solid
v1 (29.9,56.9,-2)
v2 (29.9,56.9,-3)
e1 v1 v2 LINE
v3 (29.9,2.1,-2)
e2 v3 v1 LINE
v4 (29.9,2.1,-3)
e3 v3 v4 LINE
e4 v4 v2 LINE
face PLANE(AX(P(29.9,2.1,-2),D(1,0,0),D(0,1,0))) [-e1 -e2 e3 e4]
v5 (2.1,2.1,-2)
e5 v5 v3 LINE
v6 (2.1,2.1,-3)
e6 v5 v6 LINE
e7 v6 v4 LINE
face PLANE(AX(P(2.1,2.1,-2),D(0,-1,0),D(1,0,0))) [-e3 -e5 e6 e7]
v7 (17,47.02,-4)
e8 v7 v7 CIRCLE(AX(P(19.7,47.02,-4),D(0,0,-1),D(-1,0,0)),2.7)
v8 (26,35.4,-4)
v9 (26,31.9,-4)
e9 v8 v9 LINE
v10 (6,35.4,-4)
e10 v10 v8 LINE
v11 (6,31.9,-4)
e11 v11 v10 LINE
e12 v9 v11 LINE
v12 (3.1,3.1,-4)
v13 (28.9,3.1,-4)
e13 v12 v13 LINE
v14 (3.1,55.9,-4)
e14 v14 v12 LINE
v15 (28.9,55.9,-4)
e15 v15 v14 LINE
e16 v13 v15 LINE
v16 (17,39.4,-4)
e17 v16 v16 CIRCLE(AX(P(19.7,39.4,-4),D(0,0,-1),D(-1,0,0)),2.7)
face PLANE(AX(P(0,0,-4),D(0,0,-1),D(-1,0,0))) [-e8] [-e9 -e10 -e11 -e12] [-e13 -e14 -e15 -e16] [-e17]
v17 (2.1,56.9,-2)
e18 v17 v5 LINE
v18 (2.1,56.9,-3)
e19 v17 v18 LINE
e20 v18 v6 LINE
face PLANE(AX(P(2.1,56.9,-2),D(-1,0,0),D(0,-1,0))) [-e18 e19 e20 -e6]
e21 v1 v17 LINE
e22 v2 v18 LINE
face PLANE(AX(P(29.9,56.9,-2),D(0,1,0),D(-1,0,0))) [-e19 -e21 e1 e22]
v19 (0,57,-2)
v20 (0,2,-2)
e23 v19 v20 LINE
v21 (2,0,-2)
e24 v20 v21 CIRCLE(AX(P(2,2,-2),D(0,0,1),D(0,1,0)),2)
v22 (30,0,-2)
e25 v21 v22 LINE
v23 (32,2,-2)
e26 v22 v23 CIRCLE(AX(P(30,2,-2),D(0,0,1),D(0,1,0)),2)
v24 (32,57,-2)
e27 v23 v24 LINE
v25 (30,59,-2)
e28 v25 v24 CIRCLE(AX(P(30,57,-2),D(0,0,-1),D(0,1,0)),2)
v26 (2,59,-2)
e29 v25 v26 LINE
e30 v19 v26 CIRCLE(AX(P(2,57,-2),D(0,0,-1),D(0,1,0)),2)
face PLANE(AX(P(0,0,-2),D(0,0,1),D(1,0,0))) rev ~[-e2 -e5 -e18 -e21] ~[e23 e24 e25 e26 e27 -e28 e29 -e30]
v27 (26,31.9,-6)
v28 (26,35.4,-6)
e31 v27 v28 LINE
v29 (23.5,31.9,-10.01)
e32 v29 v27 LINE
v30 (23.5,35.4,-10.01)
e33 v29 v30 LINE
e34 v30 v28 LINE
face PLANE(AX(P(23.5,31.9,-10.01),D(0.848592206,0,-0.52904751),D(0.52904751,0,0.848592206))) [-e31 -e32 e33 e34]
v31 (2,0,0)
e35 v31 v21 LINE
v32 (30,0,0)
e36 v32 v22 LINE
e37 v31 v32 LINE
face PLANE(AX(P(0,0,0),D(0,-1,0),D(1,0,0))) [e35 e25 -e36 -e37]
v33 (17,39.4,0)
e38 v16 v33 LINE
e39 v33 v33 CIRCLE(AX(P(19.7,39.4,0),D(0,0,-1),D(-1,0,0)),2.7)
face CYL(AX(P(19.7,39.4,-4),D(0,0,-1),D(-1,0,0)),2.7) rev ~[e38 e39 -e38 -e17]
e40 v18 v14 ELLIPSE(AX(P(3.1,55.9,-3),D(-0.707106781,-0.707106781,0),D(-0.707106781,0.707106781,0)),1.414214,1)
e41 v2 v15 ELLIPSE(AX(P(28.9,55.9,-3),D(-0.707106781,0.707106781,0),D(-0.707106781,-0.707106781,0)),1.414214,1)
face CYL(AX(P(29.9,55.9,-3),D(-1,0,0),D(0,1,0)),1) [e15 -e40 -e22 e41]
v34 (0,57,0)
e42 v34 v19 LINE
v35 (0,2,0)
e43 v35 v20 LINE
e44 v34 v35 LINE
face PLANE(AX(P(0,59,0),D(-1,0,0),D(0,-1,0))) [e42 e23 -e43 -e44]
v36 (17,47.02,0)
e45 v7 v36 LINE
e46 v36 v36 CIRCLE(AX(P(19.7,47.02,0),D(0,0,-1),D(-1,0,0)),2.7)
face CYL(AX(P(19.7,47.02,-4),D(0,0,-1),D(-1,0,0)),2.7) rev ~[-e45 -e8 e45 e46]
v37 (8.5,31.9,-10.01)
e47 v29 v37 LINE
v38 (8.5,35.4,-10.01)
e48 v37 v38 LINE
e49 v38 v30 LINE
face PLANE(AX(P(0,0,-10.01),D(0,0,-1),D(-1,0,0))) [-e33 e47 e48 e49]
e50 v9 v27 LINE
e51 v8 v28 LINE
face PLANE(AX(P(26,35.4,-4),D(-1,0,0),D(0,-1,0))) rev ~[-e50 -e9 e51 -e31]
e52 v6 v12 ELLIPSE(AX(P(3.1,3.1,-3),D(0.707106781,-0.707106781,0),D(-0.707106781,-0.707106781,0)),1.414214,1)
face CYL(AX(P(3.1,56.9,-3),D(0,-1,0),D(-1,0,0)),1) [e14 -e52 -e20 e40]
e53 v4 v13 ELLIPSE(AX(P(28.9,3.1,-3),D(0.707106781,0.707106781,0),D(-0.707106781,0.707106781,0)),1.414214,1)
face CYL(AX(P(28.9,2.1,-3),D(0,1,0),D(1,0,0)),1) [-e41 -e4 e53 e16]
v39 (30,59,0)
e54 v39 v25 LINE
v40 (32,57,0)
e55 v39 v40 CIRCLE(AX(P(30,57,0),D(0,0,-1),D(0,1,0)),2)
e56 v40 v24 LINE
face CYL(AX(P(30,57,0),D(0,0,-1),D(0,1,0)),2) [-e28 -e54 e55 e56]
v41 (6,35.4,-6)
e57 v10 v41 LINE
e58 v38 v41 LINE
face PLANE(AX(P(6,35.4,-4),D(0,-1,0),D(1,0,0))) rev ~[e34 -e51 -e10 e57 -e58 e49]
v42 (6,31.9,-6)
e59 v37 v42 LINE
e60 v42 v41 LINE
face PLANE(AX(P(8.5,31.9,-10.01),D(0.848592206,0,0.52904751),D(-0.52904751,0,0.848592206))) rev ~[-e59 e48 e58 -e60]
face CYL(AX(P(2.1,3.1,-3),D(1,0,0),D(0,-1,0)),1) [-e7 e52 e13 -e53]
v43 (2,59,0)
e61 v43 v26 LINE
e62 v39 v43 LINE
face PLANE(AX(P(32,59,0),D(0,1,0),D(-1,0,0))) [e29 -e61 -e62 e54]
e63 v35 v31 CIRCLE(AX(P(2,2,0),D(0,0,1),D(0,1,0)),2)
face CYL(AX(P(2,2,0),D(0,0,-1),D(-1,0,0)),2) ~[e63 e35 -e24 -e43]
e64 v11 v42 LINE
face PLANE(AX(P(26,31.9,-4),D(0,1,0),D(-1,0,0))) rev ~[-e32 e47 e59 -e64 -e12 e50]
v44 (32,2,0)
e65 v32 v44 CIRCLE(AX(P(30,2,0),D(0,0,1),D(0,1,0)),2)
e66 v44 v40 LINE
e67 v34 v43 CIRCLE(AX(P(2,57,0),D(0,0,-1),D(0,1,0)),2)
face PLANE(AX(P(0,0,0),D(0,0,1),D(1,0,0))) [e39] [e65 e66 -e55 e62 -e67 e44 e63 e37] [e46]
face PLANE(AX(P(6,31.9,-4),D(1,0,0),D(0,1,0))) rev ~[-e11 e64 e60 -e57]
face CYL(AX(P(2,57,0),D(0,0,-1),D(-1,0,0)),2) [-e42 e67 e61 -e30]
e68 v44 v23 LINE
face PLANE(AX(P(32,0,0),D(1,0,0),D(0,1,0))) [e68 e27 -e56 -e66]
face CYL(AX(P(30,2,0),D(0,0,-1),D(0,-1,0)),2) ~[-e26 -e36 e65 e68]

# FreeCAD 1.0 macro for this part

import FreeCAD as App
import Part
import Sketcher

V = App.Vector
Q = App.Units.Quantity


def edges_at(feature, points):
    """Names of the edges that pass closest to the given points."""
    edges = feature.Shape.Edges
    near = lambda p: min(range(len(edges)), key=lambda i: edges[i].distToShape(Part.Vertex(*p))[0])
    return sorted({f"Edge{near(p) + 1}" for p in points})


def add_polygon(sketch, points):
    """Adds a closed chain of lines whose ends are joined by coincident constraints."""
    first, n = sketch.GeometryCount, len(points)
    for a, b in zip(points, points[1:] + points[:1]):
        sketch.addGeometry(Part.LineSegment(App.Vector(*a, 0), App.Vector(*b, 0)), False)
    for i in range(n):
        sketch.addConstraint(Sketcher.Constraint("Coincident", first + i, 2, first + (i + 1) % n, 1))

doc = App.newDocument("Part")
params = doc.addObject("Spreadsheet::Sheet", "Params")
for row, (alias, value) in enumerate([
    ("sketch1_width", "32 mm"),
    ("sketch1_height", "59 mm"),
    ("pad1_length", "2 mm"),
    ("sketch2_width", "27.8 mm"),
    ("sketch2_height", "54.8 mm"),
    ("pad2_length", "2 mm"),
    ("sketch3_diameter", "5.4 mm"),
    ("fillet_radius", "1 mm"),
    ("fillet2_radius", "2 mm"),
    ("sketch4_width", "20 mm"),
    ("sketch4_height", "3.5 mm"),
    ("pad3_length", "6.01 mm"),
    ("sketch5_width", "2.5 mm"),
    ("sketch5_height", "4.01 mm"),
    ("pocket2_length", "3.5 mm"),
], start=1):
    params.set(f"A{row}", alias)
    params.set(f"B{row}", "=" + value)
    params.setAlias(f"B{row}", alias)

body = doc.addObject("PartDesign::Body", "Body")

sketch1 = body.newObject("Sketcher::SketchObject", "Sketch")
sketch1.AttachmentSupport = (doc.getObject("XY_Plane"), [""])
sketch1.MapMode = "FlatFace"
add_polygon(sketch1, [(0, 59), (0, 0), (32, 0), (32, 59)])
sketch1.addConstraint([
    Sketcher.Constraint("Vertical", 0),
    Sketcher.Constraint("Horizontal", 1),
    Sketcher.Constraint("Vertical", 2),
    Sketcher.Constraint("Horizontal", 3),
    Sketcher.Constraint("Coincident", 0, 2, -1, 1),
    Sketcher.Constraint("DistanceX", 1, 1, 1, 2, Q("32 mm")),
    Sketcher.Constraint("DistanceY", 0, 2, 0, 1, Q("59 mm")),
])
sketch1.setExpression("Constraints[9]", "Params.sketch1_width")
sketch1.setExpression("Constraints[10]", "Params.sketch1_height")
pad1 = body.newObject("PartDesign::Pad", "Pad")
pad1.Profile = sketch1
pad1.setExpression("Length", "Params.pad1_length")
pad1.Reversed = True

sketch2 = body.newObject("Sketcher::SketchObject", "Sketch001")
sketch2.AttachmentSupport = (doc.getObject("XY_Plane"), [""])
sketch2.MapMode = "FlatFace"
sketch2.AttachmentOffset = App.Placement(V(0, 0, -2), App.Rotation())
add_polygon(sketch2, [(29.9, 2.1), (2.1, 2.1), (2.1, 56.9), (29.9, 56.9)])
sketch2.addConstraint([
    Sketcher.Constraint("Horizontal", 0),
    Sketcher.Constraint("Vertical", 1),
    Sketcher.Constraint("Horizontal", 2),
    Sketcher.Constraint("Vertical", 3),
    Sketcher.Constraint("DistanceX", -1, 1, 0, 2, Q("2.1 mm")),
    Sketcher.Constraint("DistanceY", -1, 1, 0, 2, Q("2.1 mm")),
    Sketcher.Constraint("DistanceX", 0, 2, 0, 1, Q("27.8 mm")),
    Sketcher.Constraint("DistanceY", 1, 1, 1, 2, Q("54.8 mm")),
])
sketch2.setExpression("Constraints[10]", "Params.sketch2_width")
sketch2.setExpression("Constraints[11]", "Params.sketch2_height")
pad2 = body.newObject("PartDesign::Pad", "Pad001")
pad2.Profile = sketch2
pad2.setExpression("Length", "Params.pad2_length")
pad2.Reversed = True

sketch3 = body.newObject("Sketcher::SketchObject", "Sketch002")
sketch3.AttachmentSupport = (doc.getObject("XY_Plane"), [""])
sketch3.MapMode = "FlatFace"
sketch3.AttachmentOffset = App.Placement(V(0, 0, -4), App.Rotation())
sketch3.addGeometry([
    Part.Circle(V(19.7, 39.4, 0), V(0, 0, 1), 2.7),
    Part.Circle(V(19.7, 47.02, 0), V(0, 0, 1), 2.7),
], False)
sketch3.addConstraint([
    Sketcher.Constraint("Equal", 0, 1),
    Sketcher.Constraint("Vertical", 0, 3, 1, 3),
    Sketcher.Constraint("Diameter", 0, Q("5.4 mm")),
    Sketcher.Constraint("DistanceY", -1, 1, 0, 3, Q("39.4 mm")),
    Sketcher.Constraint("DistanceY", 0, 3, 1, 3, Q("7.62 mm")),
    Sketcher.Constraint("DistanceX", -1, 1, 0, 3, Q("19.7 mm")),
])
sketch3.setExpression("Constraints[2]", "Params.sketch3_diameter")
pocket1 = body.newObject("PartDesign::Pocket", "Pocket")
pocket1.Profile = sketch3
pocket1.Type = "ThroughAll"
pocket1.Reversed = True
doc.recompute()

fillet = body.newObject("PartDesign::Fillet", "Fillet")
fillet.Base = (pocket1, edges_at(pocket1, [
    (16, 56.9, -4),
    (29.9, 29.5, -4),
    (2.1, 29.5, -4),
    (16, 2.1, -4),
]))
fillet.setExpression("Radius", "Params.fillet_radius")
doc.recompute()

fillet2 = body.newObject("PartDesign::Fillet", "Fillet001")
fillet2.Base = (fillet, edges_at(fillet, [
    (0, 59, -1),
    (0, 0, -1),
    (32, 59, -1),
    (32, 0, -1),
]))
fillet2.setExpression("Radius", "Params.fillet2_radius")

sketch4 = body.newObject("Sketcher::SketchObject", "Sketch003")
sketch4.AttachmentSupport = (doc.getObject("XY_Plane"), [""])
sketch4.MapMode = "FlatFace"
sketch4.AttachmentOffset = App.Placement(V(0, 0, -4), App.Rotation())
add_polygon(sketch4, [(26, 35.4), (26, 31.9), (6, 31.9), (6, 35.4)])
sketch4.addConstraint([
    Sketcher.Constraint("Vertical", 0),
    Sketcher.Constraint("Horizontal", 1),
    Sketcher.Constraint("Vertical", 2),
    Sketcher.Constraint("Horizontal", 3),
    Sketcher.Constraint("DistanceX", 1, 2, 1, 1, Q("20 mm")),
    Sketcher.Constraint("DistanceY", 0, 2, 0, 1, Q("3.5 mm")),
    Sketcher.Constraint("DistanceX", -1, 1, 0, 2, Q("26 mm")),
    Sketcher.Constraint("DistanceY", -1, 1, 0, 2, Q("31.9 mm")),
])
sketch4.setExpression("Constraints[8]", "Params.sketch4_width")
sketch4.setExpression("Constraints[9]", "Params.sketch4_height")
pad3 = body.newObject("PartDesign::Pad", "Pad002")
pad3.Profile = sketch4
pad3.setExpression("Length", "Params.pad3_length")
pad3.Reversed = True

sketch5 = body.newObject("Sketcher::SketchObject", "Sketch004")
sketch5.AttachmentSupport = (doc.getObject("XZ_Plane"), [""])
sketch5.MapMode = "FlatFace"
sketch5.AttachmentOffset = App.Placement(V(0, 0, -31.9), App.Rotation())
add_polygon(sketch5, [(6, -6), (6, -10.01), (8.5, -10.01)])
add_polygon(sketch5, [(23.5, -10.01), (26, -10.01), (26, -6)])
sketch5.addConstraint([
    Sketcher.Constraint("Vertical", 0),
    Sketcher.Constraint("Horizontal", 1),
    Sketcher.Constraint("Horizontal", 3),
    Sketcher.Constraint("Vertical", 4),
    Sketcher.Constraint("Horizontal", 1, 2, 3, 2),
    Sketcher.Constraint("Horizontal", 2, 2, 4, 2),
    Sketcher.Constraint("Equal", 1, 3),
    Sketcher.Constraint("DistanceX", 1, 1, 1, 2, Q("2.5 mm")),
    Sketcher.Constraint("DistanceY", 0, 2, 0, 1, Q("4.01 mm")),
    Sketcher.Constraint("DistanceX", -1, 1, 0, 2, Q("6 mm")),
    Sketcher.Constraint("DistanceY", 2, 2, -1, 1, Q("6 mm")),
    Sketcher.Constraint("DistanceX", -1, 1, 3, 2, Q("26 mm")),
])
sketch5.setExpression("Constraints[13]", "Params.sketch5_width")
sketch5.setExpression("Constraints[14]", "Params.sketch5_height")
pocket2 = body.newObject("PartDesign::Pocket", "Pocket001")
pocket2.Profile = sketch5
pocket2.setExpression("Length", "Params.pocket2_length")

doc.recompute()
